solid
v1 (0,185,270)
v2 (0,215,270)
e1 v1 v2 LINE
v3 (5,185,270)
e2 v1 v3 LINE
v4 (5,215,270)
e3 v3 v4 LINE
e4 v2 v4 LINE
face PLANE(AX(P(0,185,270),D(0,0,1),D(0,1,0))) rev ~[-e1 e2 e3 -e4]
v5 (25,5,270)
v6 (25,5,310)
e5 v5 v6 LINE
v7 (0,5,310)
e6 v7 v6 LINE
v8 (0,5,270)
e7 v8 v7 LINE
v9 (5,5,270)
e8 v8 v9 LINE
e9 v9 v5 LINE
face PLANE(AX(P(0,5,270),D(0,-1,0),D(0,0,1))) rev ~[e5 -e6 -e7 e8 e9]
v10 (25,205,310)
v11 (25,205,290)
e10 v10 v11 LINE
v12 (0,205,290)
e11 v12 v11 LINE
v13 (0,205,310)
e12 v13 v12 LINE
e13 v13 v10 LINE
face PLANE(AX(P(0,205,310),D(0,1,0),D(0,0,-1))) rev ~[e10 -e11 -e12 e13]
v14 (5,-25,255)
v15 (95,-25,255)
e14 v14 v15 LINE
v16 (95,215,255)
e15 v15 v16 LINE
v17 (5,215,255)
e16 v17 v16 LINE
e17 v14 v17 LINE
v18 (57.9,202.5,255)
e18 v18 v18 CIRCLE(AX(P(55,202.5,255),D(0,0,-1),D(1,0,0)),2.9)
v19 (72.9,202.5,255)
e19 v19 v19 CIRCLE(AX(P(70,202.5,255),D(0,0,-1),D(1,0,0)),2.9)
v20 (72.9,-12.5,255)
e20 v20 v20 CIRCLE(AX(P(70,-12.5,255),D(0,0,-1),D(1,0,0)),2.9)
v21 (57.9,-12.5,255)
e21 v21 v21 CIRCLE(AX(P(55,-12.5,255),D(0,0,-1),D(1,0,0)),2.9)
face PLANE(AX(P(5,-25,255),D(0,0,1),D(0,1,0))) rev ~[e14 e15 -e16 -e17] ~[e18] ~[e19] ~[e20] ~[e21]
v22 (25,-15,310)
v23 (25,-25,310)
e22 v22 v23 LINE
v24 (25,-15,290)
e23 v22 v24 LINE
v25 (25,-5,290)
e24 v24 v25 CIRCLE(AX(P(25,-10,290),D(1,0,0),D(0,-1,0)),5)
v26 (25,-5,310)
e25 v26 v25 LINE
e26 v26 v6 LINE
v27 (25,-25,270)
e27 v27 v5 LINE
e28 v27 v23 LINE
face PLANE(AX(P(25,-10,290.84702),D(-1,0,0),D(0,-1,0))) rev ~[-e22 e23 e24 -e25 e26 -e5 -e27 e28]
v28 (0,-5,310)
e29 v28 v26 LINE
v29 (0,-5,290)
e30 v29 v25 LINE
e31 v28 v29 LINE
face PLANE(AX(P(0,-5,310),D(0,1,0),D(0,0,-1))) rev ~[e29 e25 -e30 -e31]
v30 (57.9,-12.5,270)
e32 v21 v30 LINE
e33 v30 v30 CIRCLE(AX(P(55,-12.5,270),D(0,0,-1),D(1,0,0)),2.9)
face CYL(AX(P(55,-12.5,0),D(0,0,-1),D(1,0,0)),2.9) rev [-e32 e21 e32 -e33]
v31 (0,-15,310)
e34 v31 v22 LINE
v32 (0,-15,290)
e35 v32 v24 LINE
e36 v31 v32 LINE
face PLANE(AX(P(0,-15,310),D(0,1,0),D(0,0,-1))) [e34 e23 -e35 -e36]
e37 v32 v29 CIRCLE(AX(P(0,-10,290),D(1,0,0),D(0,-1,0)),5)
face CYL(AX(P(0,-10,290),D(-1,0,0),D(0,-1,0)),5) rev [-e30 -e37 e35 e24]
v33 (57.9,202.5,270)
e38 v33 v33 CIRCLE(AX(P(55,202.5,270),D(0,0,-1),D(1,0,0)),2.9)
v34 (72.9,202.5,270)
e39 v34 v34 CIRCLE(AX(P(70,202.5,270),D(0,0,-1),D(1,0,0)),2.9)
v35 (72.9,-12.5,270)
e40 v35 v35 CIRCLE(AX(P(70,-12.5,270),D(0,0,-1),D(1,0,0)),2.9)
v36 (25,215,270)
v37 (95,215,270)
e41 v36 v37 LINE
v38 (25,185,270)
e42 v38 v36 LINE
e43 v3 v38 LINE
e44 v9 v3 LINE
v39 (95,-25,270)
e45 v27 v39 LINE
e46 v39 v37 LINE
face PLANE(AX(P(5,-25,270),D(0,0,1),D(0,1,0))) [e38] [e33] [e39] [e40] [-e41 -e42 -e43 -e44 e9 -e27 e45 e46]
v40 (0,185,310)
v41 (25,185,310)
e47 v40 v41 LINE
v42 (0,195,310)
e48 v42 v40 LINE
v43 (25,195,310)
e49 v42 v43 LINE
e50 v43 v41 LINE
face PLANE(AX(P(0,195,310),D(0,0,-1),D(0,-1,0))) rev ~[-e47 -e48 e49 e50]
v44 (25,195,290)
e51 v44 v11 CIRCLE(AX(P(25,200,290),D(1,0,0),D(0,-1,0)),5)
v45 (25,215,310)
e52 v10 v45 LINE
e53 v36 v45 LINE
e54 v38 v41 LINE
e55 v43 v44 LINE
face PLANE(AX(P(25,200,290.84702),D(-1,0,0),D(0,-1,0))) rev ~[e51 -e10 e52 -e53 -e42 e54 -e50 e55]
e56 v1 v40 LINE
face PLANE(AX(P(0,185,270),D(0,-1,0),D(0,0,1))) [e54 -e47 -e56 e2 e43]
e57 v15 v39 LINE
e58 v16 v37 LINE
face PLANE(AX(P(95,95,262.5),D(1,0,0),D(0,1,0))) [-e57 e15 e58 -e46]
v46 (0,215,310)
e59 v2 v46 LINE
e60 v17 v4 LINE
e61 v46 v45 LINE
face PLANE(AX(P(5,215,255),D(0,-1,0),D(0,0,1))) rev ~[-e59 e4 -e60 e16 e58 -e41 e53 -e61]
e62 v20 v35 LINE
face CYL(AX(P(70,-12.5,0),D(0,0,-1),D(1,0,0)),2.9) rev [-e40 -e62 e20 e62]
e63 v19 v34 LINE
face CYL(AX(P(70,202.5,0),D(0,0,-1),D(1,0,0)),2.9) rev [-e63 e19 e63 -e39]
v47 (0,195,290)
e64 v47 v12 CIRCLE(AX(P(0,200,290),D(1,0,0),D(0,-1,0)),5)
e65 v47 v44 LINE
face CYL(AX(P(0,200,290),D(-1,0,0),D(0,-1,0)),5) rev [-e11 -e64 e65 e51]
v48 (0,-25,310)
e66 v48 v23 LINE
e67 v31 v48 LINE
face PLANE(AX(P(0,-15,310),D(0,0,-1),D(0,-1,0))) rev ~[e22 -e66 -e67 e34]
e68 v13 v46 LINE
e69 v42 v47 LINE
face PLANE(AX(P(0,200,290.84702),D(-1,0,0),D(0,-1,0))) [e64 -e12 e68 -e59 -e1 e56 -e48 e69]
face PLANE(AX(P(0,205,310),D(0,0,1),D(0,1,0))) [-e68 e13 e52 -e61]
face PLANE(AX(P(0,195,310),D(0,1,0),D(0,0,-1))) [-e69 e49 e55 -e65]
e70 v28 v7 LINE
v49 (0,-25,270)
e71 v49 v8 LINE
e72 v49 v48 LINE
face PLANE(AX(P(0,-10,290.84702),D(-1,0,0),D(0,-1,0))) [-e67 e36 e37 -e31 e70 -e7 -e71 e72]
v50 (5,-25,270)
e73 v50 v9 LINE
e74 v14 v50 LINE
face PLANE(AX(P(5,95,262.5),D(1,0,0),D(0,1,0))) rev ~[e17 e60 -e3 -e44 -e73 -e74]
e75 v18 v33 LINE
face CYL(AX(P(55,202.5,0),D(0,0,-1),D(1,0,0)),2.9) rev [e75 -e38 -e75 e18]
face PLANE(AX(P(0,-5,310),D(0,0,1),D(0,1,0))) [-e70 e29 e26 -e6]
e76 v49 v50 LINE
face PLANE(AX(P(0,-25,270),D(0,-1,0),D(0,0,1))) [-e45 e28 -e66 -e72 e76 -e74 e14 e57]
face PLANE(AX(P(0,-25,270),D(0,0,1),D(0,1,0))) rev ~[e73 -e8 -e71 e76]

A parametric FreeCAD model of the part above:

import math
import FreeCAD as App
import Part
import Sketcher
Q = App.Units.Quantity

doc = App.newDocument("Part")
params = doc.addObject("Spreadsheet::Sheet", "Params")
for row, (alias, value) in enumerate([
    ("sketch1_width", "240 mm"),
    ("sketch1_height", "15 mm"),
    ("pad1_length", "90 mm"),
    ("sketch2_diameter", "5.8 mm"),
    ("sketch3_radius", "5 mm"),
    ("sketch3_width", "30 mm"),
    ("sketch3_height", "40 mm"),
    ("sketch3_height2", "20 mm"),
    ("pad2_length", "25 mm"),
], start=1):
    params.set(f"A{row}", alias)
    params.set(f"B{row}", "=" + value)
    params.setAlias(f"B{row}", alias)

body = doc.addObject("PartDesign::Body", "Body")

# Sketch on YZ plane
sketch1 = body.newObject("Sketcher::SketchObject", "Sketch")
sketch1.AttachmentSupport = (doc.getObject("YZ_Plane"), [""])
sketch1.MapMode = "FlatFace"
sketch1.AttachmentOffset = App.Placement(App.Vector(0, 0, 5), App.Rotation())
sketch1.addGeometry([
    Part.LineSegment(App.Vector(-25, 270, 0), App.Vector(-25, 255, 0)),
    Part.LineSegment(App.Vector(-25, 255, 0), App.Vector(215, 255, 0)),
    Part.LineSegment(App.Vector(215, 255, 0), App.Vector(215, 270, 0)),
    Part.LineSegment(App.Vector(215, 270, 0), App.Vector(-25, 270, 0)),
], False)
sketch1.addConstraint([
    Sketcher.Constraint("Coincident", 0, 2, 1, 1),
    Sketcher.Constraint("Coincident", 1, 2, 2, 1),
    Sketcher.Constraint("Coincident", 2, 2, 3, 1),
    Sketcher.Constraint("Coincident", 3, 2, 0, 1),
    Sketcher.Constraint("Vertical", 0),
    Sketcher.Constraint("Horizontal", 1),
    Sketcher.Constraint("Vertical", 2),
    Sketcher.Constraint("Horizontal", 3),
    Sketcher.Constraint("DistanceX", 1, 1, 1, 2, Q("240 mm")),
    Sketcher.Constraint("DistanceY", 0, 2, 0, 1, Q("15 mm")),
    Sketcher.Constraint("DistanceX", 0, 2, -1, 1, Q("25 mm")),
    Sketcher.Constraint("DistanceY", -1, 1, 0, 2, Q("255 mm")),
])
sketch1.setExpression("Constraints[8]", "Params.sketch1_width")
sketch1.setExpression("Constraints[9]", "Params.sketch1_height")
pad1 = body.newObject("PartDesign::Pad", "Pad")
pad1.Profile = sketch1
pad1.setExpression("Length", "Params.pad1_length")

# Sketch on XY plane
sketch2 = body.newObject("Sketcher::SketchObject", "Sketch001")
sketch2.AttachmentSupport = (doc.getObject("XY_Plane"), [""])
sketch2.MapMode = "FlatFace"
sketch2.addGeometry([
    Part.Circle(App.Vector(55, 202.5, 0), App.Vector(0, 0, 1), 2.9),
    Part.Circle(App.Vector(70, 202.5, 0), App.Vector(0, 0, 1), 2.9),
    Part.Circle(App.Vector(55, -12.5, 0), App.Vector(0, 0, 1), 2.9),
    Part.Circle(App.Vector(70, -12.5, 0), App.Vector(0, 0, 1), 2.9),
], False)
sketch2.addConstraint([
    Sketcher.Constraint("Equal", 0, 1),
    Sketcher.Constraint("Equal", 1, 2),
    Sketcher.Constraint("Equal", 2, 3),
    Sketcher.Constraint("Horizontal", 0, 3, 1, 3),
    Sketcher.Constraint("Horizontal", 2, 3, 3, 3),
    Sketcher.Constraint("Vertical", 0, 3, 2, 3),
    Sketcher.Constraint("Vertical", 1, 3, 3, 3),
    Sketcher.Constraint("Diameter", 0, Q("5.8 mm")),
    Sketcher.Constraint("DistanceX", -1, 1, 0, 3, Q("55 mm")),
    Sketcher.Constraint("DistanceX", -1, 1, 1, 3, Q("70 mm")),
    Sketcher.Constraint("DistanceY", 2, 3, 0, 3, Q("215 mm")),
    Sketcher.Constraint("DistanceY", -1, 1, 0, 3, Q("202.5 mm")),
])
sketch2.setExpression("Constraints[7]", "Params.sketch2_diameter")
pocket1 = body.newObject("PartDesign::Pocket", "Pocket")
pocket1.Profile = sketch2
pocket1.Type = "ThroughAll"
pocket1.Reversed = True

# Sketch on YZ plane
sketch3 = body.newObject("Sketcher::SketchObject", "Sketch002")
sketch3.AttachmentSupport = (doc.getObject("YZ_Plane"), [""])
sketch3.MapMode = "FlatFace"
sketch3.addGeometry([
    Part.LineSegment(App.Vector(-25, 310, 0), App.Vector(-25, 270, 0)),  # 0
    Part.LineSegment(App.Vector(-25, 270, 0), App.Vector(5, 270, 0)),  # 1
    Part.LineSegment(App.Vector(5, 270, 0), App.Vector(5, 310, 0)),  # 2
    Part.LineSegment(App.Vector(5, 310, 0), App.Vector(-5, 310, 0)),  # 3
    Part.LineSegment(App.Vector(-5, 310, 0), App.Vector(-5, 290, 0)),  # 4
    Part.ArcOfCircle(Part.Circle(App.Vector(-10, 290, 0), App.Vector(0, 0, 1), 5), math.radians(180), math.radians(360)),  # 5
    Part.LineSegment(App.Vector(-15, 290, 0), App.Vector(-15, 310, 0)),  # 6
    Part.LineSegment(App.Vector(-15, 310, 0), App.Vector(-25, 310, 0)),  # 7
    Part.LineSegment(App.Vector(185, 310, 0), App.Vector(185, 270, 0)),  # 8
    Part.LineSegment(App.Vector(185, 270, 0), App.Vector(215, 270, 0)),  # 9
    Part.LineSegment(App.Vector(215, 270, 0), App.Vector(215, 310, 0)),  # 10
    Part.LineSegment(App.Vector(215, 310, 0), App.Vector(205, 310, 0)),  # 11
    Part.LineSegment(App.Vector(205, 310, 0), App.Vector(205, 290, 0)),  # 12
    Part.ArcOfCircle(Part.Circle(App.Vector(200, 290, 0), App.Vector(0, 0, 1), 5), math.radians(180), math.radians(360)),  # 13
    Part.LineSegment(App.Vector(195, 290, 0), App.Vector(195, 310, 0)),  # 14
    Part.LineSegment(App.Vector(195, 310, 0), App.Vector(185, 310, 0)),  # 15
], False)
sketch3.addConstraint([
    Sketcher.Constraint("Coincident", 0, 2, 1, 1),
    Sketcher.Constraint("Coincident", 1, 2, 2, 1),
    Sketcher.Constraint("Coincident", 2, 2, 3, 1),
    Sketcher.Constraint("Coincident", 3, 2, 4, 1),
    Sketcher.Constraint("Tangent", 4, 2, 5, 2),
    Sketcher.Constraint("Tangent", 5, 1, 6, 1),
    Sketcher.Constraint("Coincident", 6, 2, 7, 1),
    Sketcher.Constraint("Coincident", 7, 2, 0, 1),
    Sketcher.Constraint("Coincident", 8, 2, 9, 1),
    Sketcher.Constraint("Coincident", 9, 2, 10, 1),
    Sketcher.Constraint("Coincident", 10, 2, 11, 1),
    Sketcher.Constraint("Coincident", 11, 2, 12, 1),
    Sketcher.Constraint("Tangent", 12, 2, 13, 2),
    Sketcher.Constraint("Tangent", 13, 1, 14, 1),
    Sketcher.Constraint("Coincident", 14, 2, 15, 1),
    Sketcher.Constraint("Coincident", 15, 2, 8, 1),
    Sketcher.Constraint("Vertical", 0),
    Sketcher.Constraint("Horizontal", 1),
    Sketcher.Constraint("Vertical", 2),
    Sketcher.Constraint("Horizontal", 3),
    Sketcher.Constraint("Vertical", 4),
    Sketcher.Constraint("Vertical", 6),
    Sketcher.Constraint("Horizontal", 7),
    Sketcher.Constraint("Vertical", 8),
    Sketcher.Constraint("Horizontal", 9),
    Sketcher.Constraint("Vertical", 10),
    Sketcher.Constraint("Horizontal", 11),
    Sketcher.Constraint("Vertical", 12),
    Sketcher.Constraint("Vertical", 14),
    Sketcher.Constraint("Horizontal", 15),
    Sketcher.Constraint("Equal", 5, 13),
    Sketcher.Constraint("Horizontal", 5, 3, 13, 3),
    Sketcher.Constraint("Horizontal", 3, 2, 6, 2),
    Sketcher.Constraint("Horizontal", 1, 2, 8, 2),
    Sketcher.Constraint("Horizontal", 7, 2, 10, 2),
    Sketcher.Constraint("Horizontal", 11, 2, 14, 2),
    Sketcher.Constraint("Equal", 3, 7),
    Sketcher.Constraint("Equal", 1, 9),
    Sketcher.Constraint("Equal", 7, 11),
    Sketcher.Constraint("Radius", 5, Q("5 mm")),
    Sketcher.Constraint("DistanceX", 1, 1, 1, 2, Q("30 mm")),
    Sketcher.Constraint("DistanceY", 0, 2, 0, 1, Q("40 mm")),
    Sketcher.Constraint("DistanceY", 4, 2, 4, 1, Q("20 mm")),
    Sketcher.Constraint("DistanceX", 5, 3, -1, 1, Q("10 mm")),
    Sketcher.Constraint("DistanceY", -1, 1, 5, 3, Q("290 mm")),
    Sketcher.Constraint("DistanceX", -1, 1, 13, 3, Q("200 mm")),
])
sketch3.setExpression("Constraints[39]", "Params.sketch3_radius")
sketch3.setExpression("Constraints[40]", "Params.sketch3_width")
sketch3.setExpression("Constraints[41]", "Params.sketch3_height")
sketch3.setExpression("Constraints[42]", "Params.sketch3_height2")
pad2 = body.newObject("PartDesign::Pad", "Pad001")
pad2.Profile = sketch3
pad2.setExpression("Length", "Params.pad2_length")

doc.recompute()
